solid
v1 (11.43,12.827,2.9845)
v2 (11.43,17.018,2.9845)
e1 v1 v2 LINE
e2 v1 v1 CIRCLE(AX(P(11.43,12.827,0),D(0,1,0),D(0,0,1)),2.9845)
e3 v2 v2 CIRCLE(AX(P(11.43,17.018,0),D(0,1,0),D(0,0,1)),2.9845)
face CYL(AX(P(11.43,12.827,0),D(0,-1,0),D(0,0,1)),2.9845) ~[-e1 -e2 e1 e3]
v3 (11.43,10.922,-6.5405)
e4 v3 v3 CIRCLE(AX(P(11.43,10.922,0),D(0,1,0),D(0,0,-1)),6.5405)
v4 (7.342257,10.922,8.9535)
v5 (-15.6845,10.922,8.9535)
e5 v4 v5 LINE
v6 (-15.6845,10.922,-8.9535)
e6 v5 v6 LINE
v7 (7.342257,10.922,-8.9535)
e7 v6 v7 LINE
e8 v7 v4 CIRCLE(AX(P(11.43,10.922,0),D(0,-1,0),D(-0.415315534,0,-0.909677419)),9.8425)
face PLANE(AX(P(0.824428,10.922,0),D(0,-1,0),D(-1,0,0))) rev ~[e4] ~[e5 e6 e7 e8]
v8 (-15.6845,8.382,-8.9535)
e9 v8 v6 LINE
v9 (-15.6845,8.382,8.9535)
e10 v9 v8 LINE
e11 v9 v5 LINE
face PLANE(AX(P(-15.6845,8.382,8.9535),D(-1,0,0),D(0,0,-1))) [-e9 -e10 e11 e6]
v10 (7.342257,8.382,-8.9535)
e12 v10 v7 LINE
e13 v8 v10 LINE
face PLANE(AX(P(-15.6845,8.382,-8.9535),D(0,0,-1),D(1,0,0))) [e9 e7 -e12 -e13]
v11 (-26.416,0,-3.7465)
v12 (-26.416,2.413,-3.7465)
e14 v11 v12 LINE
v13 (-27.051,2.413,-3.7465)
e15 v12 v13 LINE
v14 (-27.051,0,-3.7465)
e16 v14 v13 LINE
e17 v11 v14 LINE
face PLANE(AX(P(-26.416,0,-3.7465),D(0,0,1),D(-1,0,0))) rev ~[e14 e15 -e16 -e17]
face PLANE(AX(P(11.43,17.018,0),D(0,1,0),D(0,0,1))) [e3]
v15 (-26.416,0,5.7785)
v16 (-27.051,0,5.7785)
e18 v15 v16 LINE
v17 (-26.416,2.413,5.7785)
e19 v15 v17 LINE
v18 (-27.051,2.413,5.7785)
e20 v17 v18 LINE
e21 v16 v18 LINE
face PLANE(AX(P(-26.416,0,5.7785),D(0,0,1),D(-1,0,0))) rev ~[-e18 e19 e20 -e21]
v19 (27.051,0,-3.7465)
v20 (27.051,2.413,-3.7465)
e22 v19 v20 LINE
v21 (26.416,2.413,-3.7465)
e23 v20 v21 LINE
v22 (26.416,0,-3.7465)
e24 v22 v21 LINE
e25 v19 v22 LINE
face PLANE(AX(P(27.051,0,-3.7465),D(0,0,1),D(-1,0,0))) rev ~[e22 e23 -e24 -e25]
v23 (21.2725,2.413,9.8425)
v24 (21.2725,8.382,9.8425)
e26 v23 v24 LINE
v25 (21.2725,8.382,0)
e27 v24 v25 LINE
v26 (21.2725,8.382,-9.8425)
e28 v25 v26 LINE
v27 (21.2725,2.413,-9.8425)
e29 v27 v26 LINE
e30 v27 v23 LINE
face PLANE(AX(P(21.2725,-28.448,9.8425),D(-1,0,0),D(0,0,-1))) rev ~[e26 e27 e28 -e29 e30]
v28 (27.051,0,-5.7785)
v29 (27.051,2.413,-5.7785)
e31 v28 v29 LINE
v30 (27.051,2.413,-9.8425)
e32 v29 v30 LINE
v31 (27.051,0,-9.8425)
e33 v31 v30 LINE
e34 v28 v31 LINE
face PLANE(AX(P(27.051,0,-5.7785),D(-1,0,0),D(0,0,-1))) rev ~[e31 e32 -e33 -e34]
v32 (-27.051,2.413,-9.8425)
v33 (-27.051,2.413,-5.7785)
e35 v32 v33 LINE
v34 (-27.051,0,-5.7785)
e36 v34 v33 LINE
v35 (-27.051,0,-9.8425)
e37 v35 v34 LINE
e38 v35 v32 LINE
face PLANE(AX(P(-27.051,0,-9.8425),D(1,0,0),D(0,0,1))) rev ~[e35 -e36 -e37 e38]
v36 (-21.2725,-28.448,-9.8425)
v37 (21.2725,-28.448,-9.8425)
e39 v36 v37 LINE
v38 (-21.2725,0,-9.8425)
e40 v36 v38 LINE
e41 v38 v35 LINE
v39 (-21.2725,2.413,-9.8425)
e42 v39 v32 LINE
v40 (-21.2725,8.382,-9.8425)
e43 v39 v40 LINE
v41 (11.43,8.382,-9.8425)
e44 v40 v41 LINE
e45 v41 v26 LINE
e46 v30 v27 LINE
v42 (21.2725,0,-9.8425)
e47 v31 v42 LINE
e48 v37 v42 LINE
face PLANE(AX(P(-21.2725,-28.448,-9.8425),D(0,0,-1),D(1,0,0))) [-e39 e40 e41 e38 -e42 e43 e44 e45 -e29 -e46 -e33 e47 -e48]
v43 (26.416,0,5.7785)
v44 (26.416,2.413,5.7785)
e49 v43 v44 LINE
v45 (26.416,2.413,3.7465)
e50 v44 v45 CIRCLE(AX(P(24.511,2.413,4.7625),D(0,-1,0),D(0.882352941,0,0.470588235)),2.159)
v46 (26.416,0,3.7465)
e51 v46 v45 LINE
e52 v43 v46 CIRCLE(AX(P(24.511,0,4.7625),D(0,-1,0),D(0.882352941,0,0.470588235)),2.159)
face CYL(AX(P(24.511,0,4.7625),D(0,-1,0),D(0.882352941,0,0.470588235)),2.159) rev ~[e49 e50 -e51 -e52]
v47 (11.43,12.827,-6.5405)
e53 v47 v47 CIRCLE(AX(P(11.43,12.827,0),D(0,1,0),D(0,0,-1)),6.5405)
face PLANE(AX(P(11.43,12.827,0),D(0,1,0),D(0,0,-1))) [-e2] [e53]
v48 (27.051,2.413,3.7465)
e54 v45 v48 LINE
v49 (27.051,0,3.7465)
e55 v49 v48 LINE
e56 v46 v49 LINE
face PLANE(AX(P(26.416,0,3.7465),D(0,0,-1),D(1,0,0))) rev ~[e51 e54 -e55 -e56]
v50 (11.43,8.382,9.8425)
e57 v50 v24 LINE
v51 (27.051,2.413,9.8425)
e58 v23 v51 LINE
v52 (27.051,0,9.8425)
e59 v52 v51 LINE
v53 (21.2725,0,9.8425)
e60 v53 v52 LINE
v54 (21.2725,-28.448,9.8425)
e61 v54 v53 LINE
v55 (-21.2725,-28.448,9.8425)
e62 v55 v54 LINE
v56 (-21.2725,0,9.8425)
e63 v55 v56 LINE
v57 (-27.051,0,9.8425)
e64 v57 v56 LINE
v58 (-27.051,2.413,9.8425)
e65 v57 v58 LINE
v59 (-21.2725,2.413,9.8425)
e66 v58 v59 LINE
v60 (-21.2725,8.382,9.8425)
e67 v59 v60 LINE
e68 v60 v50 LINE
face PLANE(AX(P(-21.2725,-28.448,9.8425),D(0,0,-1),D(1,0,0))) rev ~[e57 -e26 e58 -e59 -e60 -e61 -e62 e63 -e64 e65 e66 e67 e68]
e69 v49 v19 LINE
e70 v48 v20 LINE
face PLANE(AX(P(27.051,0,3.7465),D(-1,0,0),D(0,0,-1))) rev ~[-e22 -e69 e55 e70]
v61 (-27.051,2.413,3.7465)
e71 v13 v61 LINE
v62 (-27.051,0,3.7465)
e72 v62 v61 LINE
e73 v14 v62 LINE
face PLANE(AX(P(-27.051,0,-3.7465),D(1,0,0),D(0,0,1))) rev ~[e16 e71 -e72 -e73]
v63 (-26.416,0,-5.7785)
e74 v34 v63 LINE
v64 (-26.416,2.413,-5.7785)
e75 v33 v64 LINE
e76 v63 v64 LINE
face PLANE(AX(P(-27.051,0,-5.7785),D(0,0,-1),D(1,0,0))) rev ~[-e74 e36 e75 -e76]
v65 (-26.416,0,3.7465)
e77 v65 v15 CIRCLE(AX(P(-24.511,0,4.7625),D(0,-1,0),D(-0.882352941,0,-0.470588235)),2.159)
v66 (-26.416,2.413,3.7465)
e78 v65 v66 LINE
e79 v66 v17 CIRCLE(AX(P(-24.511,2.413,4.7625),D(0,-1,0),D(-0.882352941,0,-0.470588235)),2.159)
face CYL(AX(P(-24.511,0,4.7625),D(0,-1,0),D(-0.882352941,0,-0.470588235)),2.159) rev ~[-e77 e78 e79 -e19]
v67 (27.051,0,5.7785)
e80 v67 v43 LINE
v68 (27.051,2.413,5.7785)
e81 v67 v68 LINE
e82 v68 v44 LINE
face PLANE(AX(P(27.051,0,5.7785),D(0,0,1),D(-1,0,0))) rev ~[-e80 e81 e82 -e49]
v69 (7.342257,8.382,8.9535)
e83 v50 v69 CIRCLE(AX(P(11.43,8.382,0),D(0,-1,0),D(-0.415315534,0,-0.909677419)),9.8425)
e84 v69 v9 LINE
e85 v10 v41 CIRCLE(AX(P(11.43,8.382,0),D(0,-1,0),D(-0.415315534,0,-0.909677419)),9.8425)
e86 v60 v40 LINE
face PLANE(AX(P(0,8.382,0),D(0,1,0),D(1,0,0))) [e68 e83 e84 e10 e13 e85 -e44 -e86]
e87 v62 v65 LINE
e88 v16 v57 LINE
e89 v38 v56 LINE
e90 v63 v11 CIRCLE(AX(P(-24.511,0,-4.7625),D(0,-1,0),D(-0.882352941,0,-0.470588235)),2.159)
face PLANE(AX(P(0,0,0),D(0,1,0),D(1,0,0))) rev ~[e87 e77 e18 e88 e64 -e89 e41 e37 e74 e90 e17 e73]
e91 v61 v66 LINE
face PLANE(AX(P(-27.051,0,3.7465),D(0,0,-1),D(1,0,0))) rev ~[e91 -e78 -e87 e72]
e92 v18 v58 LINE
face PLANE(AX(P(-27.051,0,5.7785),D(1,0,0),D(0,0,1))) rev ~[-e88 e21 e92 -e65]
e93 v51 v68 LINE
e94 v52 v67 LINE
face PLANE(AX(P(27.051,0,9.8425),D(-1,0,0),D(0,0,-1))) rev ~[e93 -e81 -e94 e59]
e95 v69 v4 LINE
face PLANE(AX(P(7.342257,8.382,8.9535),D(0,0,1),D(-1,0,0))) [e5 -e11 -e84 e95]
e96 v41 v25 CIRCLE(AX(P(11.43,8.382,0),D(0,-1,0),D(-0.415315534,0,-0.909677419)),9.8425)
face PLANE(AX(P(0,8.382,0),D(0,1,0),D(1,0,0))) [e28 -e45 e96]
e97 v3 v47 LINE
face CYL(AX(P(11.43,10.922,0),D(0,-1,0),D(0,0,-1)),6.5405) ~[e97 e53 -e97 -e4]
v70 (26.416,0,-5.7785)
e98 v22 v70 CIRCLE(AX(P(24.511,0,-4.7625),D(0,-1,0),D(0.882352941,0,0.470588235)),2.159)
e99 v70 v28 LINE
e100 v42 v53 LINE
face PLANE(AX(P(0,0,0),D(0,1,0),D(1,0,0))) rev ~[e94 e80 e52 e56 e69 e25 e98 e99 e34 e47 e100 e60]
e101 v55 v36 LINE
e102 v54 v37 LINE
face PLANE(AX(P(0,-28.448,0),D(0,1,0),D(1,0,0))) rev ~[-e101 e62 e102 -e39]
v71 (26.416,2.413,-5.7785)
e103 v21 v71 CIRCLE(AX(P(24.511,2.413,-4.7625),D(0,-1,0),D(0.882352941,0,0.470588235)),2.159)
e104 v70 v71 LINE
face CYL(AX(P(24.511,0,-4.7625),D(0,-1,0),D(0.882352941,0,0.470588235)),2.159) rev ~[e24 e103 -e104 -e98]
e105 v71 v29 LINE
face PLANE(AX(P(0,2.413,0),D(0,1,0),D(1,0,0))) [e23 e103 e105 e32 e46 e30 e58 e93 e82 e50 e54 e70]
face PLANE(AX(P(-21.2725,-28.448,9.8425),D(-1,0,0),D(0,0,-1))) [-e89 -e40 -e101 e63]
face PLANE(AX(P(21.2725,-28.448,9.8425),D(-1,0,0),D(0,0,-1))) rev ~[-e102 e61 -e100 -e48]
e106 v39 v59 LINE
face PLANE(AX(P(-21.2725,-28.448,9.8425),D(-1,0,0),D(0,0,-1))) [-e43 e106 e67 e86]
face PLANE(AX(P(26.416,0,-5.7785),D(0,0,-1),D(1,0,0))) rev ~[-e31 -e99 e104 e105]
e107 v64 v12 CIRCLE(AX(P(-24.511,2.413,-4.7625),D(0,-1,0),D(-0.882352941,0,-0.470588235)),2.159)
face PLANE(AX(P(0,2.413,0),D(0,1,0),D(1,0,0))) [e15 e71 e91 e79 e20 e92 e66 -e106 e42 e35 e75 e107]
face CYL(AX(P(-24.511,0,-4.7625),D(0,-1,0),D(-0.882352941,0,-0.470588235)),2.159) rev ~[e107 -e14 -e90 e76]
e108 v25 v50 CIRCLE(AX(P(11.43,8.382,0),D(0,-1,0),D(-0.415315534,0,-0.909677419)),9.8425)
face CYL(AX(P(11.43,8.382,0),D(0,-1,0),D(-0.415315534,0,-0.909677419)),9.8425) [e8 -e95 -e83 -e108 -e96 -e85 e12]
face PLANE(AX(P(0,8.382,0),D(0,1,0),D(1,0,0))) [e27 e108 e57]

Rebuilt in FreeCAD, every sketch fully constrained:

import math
import FreeCAD as App
import Part
import Sketcher

V = App.Vector
Q = App.Units.Quantity

doc = App.newDocument("Part")
body = doc.addObject("PartDesign::Body", "Body")

sketch1 = doc.addObject("Sketcher::SketchObject", "Sketch")
body.addObject(sketch1)
sketch1.AttachmentSupport = (doc.XZ_Plane, [""])
sketch1.MapMode = "FlatFace"
sketch1.addGeometry([
    Part.LineSegment(V(-27.1, 9.8, 0), V(27.1, 9.8, 0)),
    Part.LineSegment(V(27.1, 9.8, 0), V(27.1, 5.8, 0)),
    Part.LineSegment(V(27.1, 5.8, 0), V(26.4, 5.8, 0)),
    Part.ArcOfCircle(Part.Circle(V(24.5, 4.8, 0), V(0, 0, 1), 2.2), math.radians(28), math.radians(332)),
    Part.LineSegment(V(26.4, 3.7, 0), V(27.1, 3.7, 0)),
    Part.LineSegment(V(27.1, 3.7, 0), V(27.1, -3.7, 0)),
    Part.LineSegment(V(27.1, -3.7, 0), V(26.4, -3.7, 0)),
    Part.ArcOfCircle(Part.Circle(V(24.5, -4.8, 0), V(0, 0, 1), 2.2), math.radians(28), math.radians(332)),
    Part.LineSegment(V(26.4, -5.8, 0), V(27.1, -5.8, 0)),
    Part.LineSegment(V(27.1, -5.8, 0), V(27.1, -9.8, 0)),
    Part.LineSegment(V(27.1, -9.8, 0), V(-27.1, -9.8, 0)),
    Part.LineSegment(V(-27.1, -9.8, 0), V(-27.1, -5.8, 0)),
    Part.LineSegment(V(-27.1, -5.8, 0), V(-26.4, -5.8, 0)),
    Part.ArcOfCircle(Part.Circle(V(-24.5, -4.8, 0), V(0, 0, 1), 2.2), math.radians(-152), math.radians(152)),
    Part.LineSegment(V(-26.4, -3.7, 0), V(-27.1, -3.7, 0)),
    Part.LineSegment(V(-27.1, -3.7, 0), V(-27.1, 3.7, 0)),
    Part.LineSegment(V(-27.1, 3.7, 0), V(-26.4, 3.7, 0)),
    Part.ArcOfCircle(Part.Circle(V(-24.5, 4.8, 0), V(0, 0, 1), 2.2), math.radians(-152), math.radians(152)),
    Part.LineSegment(V(-26.4, 5.8, 0), V(-27.1, 5.8, 0)),
    Part.LineSegment(V(-27.1, 5.8, 0), V(-27.1, 9.8, 0)),
], False)
sketch1.addConstraint([
    Sketcher.Constraint("Coincident", 0, 2, 1, 1),
    Sketcher.Constraint("Coincident", 1, 2, 2, 1),
    Sketcher.Constraint("Coincident", 2, 2, 3, 1),
    Sketcher.Constraint("Coincident", 3, 2, 4, 1),
    Sketcher.Constraint("Coincident", 4, 2, 5, 1),
    Sketcher.Constraint("Coincident", 5, 2, 6, 1),
    Sketcher.Constraint("Coincident", 6, 2, 7, 1),
    Sketcher.Constraint("Coincident", 7, 2, 8, 1),
    Sketcher.Constraint("Coincident", 8, 2, 9, 1),
    Sketcher.Constraint("Coincident", 9, 2, 10, 1),
    Sketcher.Constraint("Coincident", 10, 2, 11, 1),
    Sketcher.Constraint("Coincident", 11, 2, 12, 1),
    Sketcher.Constraint("Coincident", 12, 2, 13, 1),
    Sketcher.Constraint("Coincident", 13, 2, 14, 1),
    Sketcher.Constraint("Coincident", 14, 2, 15, 1),
    Sketcher.Constraint("Coincident", 15, 2, 16, 1),
    Sketcher.Constraint("Coincident", 16, 2, 17, 1),
    Sketcher.Constraint("Coincident", 17, 2, 18, 1),
    Sketcher.Constraint("Coincident", 18, 2, 19, 1),
    Sketcher.Constraint("Coincident", 19, 2, 0, 1),
    Sketcher.Constraint("Horizontal", 0),
    Sketcher.Constraint("Vertical", 1),
    Sketcher.Constraint("Horizontal", 2),
    Sketcher.Constraint("Horizontal", 4),
    Sketcher.Constraint("Vertical", 5),
    Sketcher.Constraint("Horizontal", 6),
    Sketcher.Constraint("Horizontal", 8),
    Sketcher.Constraint("Vertical", 9),
    Sketcher.Constraint("Horizontal", 10),
    Sketcher.Constraint("Vertical", 11),
    Sketcher.Constraint("Horizontal", 12),
    Sketcher.Constraint("Horizontal", 14),
    Sketcher.Constraint("Vertical", 15),
    Sketcher.Constraint("Horizontal", 16),
    Sketcher.Constraint("Horizontal", 18),
    Sketcher.Constraint("Vertical", 19),
    Sketcher.Constraint("Equal", 3, 7),
    Sketcher.Constraint("Equal", 7, 13),
    Sketcher.Constraint("Equal", 13, 17),
    Sketcher.Constraint("Symmetric", 3, 3, 13, 3, -1, 1),
    Sketcher.Constraint("Symmetric", 7, 3, 17, 3, -1, 1),
    Sketcher.Constraint("Symmetric", 0, 2, 10, 2, -1, 1),
    Sketcher.Constraint("Symmetric", 4, 2, 14, 2, -1, 1),
    Sketcher.Constraint("Symmetric", 8, 2, 18, 2, -1, 1),
    Sketcher.Constraint("Symmetric", 7, 3, 13, 3, -2),
    Sketcher.Constraint("Symmetric", 8, 2, 11, 2, -2),
    Sketcher.Constraint("Horizontal", 6, 2, 13, 2),
    Sketcher.Constraint("Horizontal", 4, 2, 15, 2),
    Sketcher.Constraint("Horizontal", 2, 2, 17, 2),
    Sketcher.Constraint("Vertical", 2, 2, 3, 2),
    Sketcher.Constraint("Vertical", 1, 2, 4, 2),
    Sketcher.Constraint("Radius", 3, Q("0.085 in")),
    Sketcher.Constraint("DistanceX", 0, 1, 0, 2, Q("2.13 in")),
    Sketcher.Constraint("DistanceY", 1, 2, 1, 1, Q("0.16 in")),
    Sketcher.Constraint("DistanceX", 3, 3, 0, 2, Q("0.1 in")),
    Sketcher.Constraint("DistanceY", 3, 3, 0, 2, Q("0.2 in")),
    Sketcher.Constraint("DistanceY", 5, 2, 5, 1, Q("0.295 in")),
])
pad1 = doc.addObject("PartDesign::Pad", "Pad")
body.addObject(pad1)
pad1.Profile = sketch1
pad1.Length = Q("0.095 in")
pad1.Reversed = True

sketch2 = doc.addObject("Sketcher::SketchObject", "Sketch001")
body.addObject(sketch2)
sketch2.AttachmentSupport = (doc.XZ_Plane, [""])
sketch2.MapMode = "FlatFace"
sketch2.addGeometry([
    Part.LineSegment(V(-21, -10, 0), V(-21, 10, 0)),
    Part.LineSegment(V(-21, 10, 0), V(21, 10, 0)),
    Part.LineSegment(V(21, 10, 0), V(21, -10, 0)),
    Part.LineSegment(V(21, -10, 0), V(-21, -10, 0)),
], False)
sketch2.addConstraint([
    Sketcher.Constraint("Coincident", 0, 2, 1, 1),
    Sketcher.Constraint("Coincident", 1, 2, 2, 1),
    Sketcher.Constraint("Coincident", 2, 2, 3, 1),
    Sketcher.Constraint("Coincident", 3, 2, 0, 1),
    Sketcher.Constraint("Vertical", 0),
    Sketcher.Constraint("Horizontal", 1),
    Sketcher.Constraint("Vertical", 2),
    Sketcher.Constraint("Horizontal", 3),
    Sketcher.Constraint("Symmetric", 0, 2, 2, 2, -1, 1),
    Sketcher.Constraint("DistanceX", 1, 1, 1, 2, Q("1.675 in")),
    Sketcher.Constraint("DistanceY", 0, 1, 0, 2, Q("0.775 in")),
])
pad2 = doc.addObject("PartDesign::Pad", "Pad001")
body.addObject(pad2)
pad2.Profile = sketch2
pad2.Type = "TwoLengths"
pad2.Length = Q("0.33 in")
pad2.Length2 = Q("1.12 in")
pad2.Reversed = True

sketch3 = doc.addObject("Sketcher::SketchObject", "Sketch002")
body.addObject(sketch3)
sketch3.AttachmentSupport = (doc.XZ_Plane, [""])
sketch3.MapMode = "FlatFace"
sketch3.AttachmentOffset = App.Placement(V(0, 0, -0.33 * 25.4), App.Rotation())
sketch3.addGeometry([
    Part.LineSegment(V(7, -9, 0), V(-16, -9, 0)),
    Part.LineSegment(V(-16, -9, 0), V(-16, 9, 0)),
    Part.LineSegment(V(-16, 9, 0), V(7, 9, 0)),
    Part.ArcOfCircle(Part.Circle(V(11, 0, 0), V(0, 0, 1), 10), math.radians(-115), math.radians(115)),
], False)
sketch3.addConstraint([
    Sketcher.Constraint("Coincident", 0, 2, 1, 1),
    Sketcher.Constraint("Coincident", 1, 2, 2, 1),
    Sketcher.Constraint("Coincident", 2, 2, 3, 2),
    Sketcher.Constraint("Coincident", 3, 1, 0, 1),
    Sketcher.Constraint("Horizontal", 0),
    Sketcher.Constraint("Vertical", 1),
    Sketcher.Constraint("Horizontal", 2),
    Sketcher.Constraint("Symmetric", 2, 2, 3, 1, -1),
    Sketcher.Constraint("Radius", 3, Q("0.3875 in")),
    Sketcher.Constraint("DistanceY", 1, 1, 1, 2, Q("0.705 in")),
    Sketcher.Constraint("DistanceX", -1, 1, 3, 3, Q("0.45 in")),
    Sketcher.Constraint("DistanceX", 0, 2, -1, 1, Q("0.6175 in")),
])
pad3 = doc.addObject("PartDesign::Pad", "Pad002")
body.addObject(pad3)
pad3.Profile = sketch3
pad3.Length = Q("0.1 in")
pad3.Reversed = True

sketch4 = doc.addObject("Sketcher::SketchObject", "Sketch003")
body.addObject(sketch4)
sketch4.AttachmentSupport = (doc.XZ_Plane, [""])
sketch4.MapMode = "FlatFace"
sketch4.AttachmentOffset = App.Placement(V(0, 0, -0.43 * 25.4), App.Rotation())
sketch4.addGeometry(Part.Circle(V(11, 0, 0), V(0, 0, 1), 7), False)
sketch4.addConstraint([
    Sketcher.Constraint("PointOnObject", 0, 3, -1),
    Sketcher.Constraint("Diameter", 0, Q("0.515 in")),
    Sketcher.Constraint("DistanceX", -1, 1, 0, 3, Q("0.45 in")),
])
pad4 = doc.addObject("PartDesign::Pad", "Pad003")
body.addObject(pad4)
pad4.Profile = sketch4
pad4.Length = Q("0.075 in")
pad4.Reversed = True

sketch5 = doc.addObject("Sketcher::SketchObject", "Sketch004")
body.addObject(sketch5)
sketch5.AttachmentSupport = (doc.XZ_Plane, [""])
sketch5.MapMode = "FlatFace"
sketch5.AttachmentOffset = App.Placement(V(0, 0, -0.505 * 25.4), App.Rotation())
sketch5.addGeometry(Part.Circle(V(11.4, 0, 0), V(0, 0, 1), 3), False)
sketch5.addConstraint([
    Sketcher.Constraint("PointOnObject", 0, 3, -1),
    Sketcher.Constraint("Diameter", 0, Q("0.235 in")),
    Sketcher.Constraint("DistanceX", -1, 1, 0, 3, Q("0.45 in")),
])
pad5 = doc.addObject("PartDesign::Pad", "Pad004")
body.addObject(pad5)
pad5.Profile = sketch5
pad5.Length = Q("0.165 in")
pad5.Reversed = True

doc.recompute()
